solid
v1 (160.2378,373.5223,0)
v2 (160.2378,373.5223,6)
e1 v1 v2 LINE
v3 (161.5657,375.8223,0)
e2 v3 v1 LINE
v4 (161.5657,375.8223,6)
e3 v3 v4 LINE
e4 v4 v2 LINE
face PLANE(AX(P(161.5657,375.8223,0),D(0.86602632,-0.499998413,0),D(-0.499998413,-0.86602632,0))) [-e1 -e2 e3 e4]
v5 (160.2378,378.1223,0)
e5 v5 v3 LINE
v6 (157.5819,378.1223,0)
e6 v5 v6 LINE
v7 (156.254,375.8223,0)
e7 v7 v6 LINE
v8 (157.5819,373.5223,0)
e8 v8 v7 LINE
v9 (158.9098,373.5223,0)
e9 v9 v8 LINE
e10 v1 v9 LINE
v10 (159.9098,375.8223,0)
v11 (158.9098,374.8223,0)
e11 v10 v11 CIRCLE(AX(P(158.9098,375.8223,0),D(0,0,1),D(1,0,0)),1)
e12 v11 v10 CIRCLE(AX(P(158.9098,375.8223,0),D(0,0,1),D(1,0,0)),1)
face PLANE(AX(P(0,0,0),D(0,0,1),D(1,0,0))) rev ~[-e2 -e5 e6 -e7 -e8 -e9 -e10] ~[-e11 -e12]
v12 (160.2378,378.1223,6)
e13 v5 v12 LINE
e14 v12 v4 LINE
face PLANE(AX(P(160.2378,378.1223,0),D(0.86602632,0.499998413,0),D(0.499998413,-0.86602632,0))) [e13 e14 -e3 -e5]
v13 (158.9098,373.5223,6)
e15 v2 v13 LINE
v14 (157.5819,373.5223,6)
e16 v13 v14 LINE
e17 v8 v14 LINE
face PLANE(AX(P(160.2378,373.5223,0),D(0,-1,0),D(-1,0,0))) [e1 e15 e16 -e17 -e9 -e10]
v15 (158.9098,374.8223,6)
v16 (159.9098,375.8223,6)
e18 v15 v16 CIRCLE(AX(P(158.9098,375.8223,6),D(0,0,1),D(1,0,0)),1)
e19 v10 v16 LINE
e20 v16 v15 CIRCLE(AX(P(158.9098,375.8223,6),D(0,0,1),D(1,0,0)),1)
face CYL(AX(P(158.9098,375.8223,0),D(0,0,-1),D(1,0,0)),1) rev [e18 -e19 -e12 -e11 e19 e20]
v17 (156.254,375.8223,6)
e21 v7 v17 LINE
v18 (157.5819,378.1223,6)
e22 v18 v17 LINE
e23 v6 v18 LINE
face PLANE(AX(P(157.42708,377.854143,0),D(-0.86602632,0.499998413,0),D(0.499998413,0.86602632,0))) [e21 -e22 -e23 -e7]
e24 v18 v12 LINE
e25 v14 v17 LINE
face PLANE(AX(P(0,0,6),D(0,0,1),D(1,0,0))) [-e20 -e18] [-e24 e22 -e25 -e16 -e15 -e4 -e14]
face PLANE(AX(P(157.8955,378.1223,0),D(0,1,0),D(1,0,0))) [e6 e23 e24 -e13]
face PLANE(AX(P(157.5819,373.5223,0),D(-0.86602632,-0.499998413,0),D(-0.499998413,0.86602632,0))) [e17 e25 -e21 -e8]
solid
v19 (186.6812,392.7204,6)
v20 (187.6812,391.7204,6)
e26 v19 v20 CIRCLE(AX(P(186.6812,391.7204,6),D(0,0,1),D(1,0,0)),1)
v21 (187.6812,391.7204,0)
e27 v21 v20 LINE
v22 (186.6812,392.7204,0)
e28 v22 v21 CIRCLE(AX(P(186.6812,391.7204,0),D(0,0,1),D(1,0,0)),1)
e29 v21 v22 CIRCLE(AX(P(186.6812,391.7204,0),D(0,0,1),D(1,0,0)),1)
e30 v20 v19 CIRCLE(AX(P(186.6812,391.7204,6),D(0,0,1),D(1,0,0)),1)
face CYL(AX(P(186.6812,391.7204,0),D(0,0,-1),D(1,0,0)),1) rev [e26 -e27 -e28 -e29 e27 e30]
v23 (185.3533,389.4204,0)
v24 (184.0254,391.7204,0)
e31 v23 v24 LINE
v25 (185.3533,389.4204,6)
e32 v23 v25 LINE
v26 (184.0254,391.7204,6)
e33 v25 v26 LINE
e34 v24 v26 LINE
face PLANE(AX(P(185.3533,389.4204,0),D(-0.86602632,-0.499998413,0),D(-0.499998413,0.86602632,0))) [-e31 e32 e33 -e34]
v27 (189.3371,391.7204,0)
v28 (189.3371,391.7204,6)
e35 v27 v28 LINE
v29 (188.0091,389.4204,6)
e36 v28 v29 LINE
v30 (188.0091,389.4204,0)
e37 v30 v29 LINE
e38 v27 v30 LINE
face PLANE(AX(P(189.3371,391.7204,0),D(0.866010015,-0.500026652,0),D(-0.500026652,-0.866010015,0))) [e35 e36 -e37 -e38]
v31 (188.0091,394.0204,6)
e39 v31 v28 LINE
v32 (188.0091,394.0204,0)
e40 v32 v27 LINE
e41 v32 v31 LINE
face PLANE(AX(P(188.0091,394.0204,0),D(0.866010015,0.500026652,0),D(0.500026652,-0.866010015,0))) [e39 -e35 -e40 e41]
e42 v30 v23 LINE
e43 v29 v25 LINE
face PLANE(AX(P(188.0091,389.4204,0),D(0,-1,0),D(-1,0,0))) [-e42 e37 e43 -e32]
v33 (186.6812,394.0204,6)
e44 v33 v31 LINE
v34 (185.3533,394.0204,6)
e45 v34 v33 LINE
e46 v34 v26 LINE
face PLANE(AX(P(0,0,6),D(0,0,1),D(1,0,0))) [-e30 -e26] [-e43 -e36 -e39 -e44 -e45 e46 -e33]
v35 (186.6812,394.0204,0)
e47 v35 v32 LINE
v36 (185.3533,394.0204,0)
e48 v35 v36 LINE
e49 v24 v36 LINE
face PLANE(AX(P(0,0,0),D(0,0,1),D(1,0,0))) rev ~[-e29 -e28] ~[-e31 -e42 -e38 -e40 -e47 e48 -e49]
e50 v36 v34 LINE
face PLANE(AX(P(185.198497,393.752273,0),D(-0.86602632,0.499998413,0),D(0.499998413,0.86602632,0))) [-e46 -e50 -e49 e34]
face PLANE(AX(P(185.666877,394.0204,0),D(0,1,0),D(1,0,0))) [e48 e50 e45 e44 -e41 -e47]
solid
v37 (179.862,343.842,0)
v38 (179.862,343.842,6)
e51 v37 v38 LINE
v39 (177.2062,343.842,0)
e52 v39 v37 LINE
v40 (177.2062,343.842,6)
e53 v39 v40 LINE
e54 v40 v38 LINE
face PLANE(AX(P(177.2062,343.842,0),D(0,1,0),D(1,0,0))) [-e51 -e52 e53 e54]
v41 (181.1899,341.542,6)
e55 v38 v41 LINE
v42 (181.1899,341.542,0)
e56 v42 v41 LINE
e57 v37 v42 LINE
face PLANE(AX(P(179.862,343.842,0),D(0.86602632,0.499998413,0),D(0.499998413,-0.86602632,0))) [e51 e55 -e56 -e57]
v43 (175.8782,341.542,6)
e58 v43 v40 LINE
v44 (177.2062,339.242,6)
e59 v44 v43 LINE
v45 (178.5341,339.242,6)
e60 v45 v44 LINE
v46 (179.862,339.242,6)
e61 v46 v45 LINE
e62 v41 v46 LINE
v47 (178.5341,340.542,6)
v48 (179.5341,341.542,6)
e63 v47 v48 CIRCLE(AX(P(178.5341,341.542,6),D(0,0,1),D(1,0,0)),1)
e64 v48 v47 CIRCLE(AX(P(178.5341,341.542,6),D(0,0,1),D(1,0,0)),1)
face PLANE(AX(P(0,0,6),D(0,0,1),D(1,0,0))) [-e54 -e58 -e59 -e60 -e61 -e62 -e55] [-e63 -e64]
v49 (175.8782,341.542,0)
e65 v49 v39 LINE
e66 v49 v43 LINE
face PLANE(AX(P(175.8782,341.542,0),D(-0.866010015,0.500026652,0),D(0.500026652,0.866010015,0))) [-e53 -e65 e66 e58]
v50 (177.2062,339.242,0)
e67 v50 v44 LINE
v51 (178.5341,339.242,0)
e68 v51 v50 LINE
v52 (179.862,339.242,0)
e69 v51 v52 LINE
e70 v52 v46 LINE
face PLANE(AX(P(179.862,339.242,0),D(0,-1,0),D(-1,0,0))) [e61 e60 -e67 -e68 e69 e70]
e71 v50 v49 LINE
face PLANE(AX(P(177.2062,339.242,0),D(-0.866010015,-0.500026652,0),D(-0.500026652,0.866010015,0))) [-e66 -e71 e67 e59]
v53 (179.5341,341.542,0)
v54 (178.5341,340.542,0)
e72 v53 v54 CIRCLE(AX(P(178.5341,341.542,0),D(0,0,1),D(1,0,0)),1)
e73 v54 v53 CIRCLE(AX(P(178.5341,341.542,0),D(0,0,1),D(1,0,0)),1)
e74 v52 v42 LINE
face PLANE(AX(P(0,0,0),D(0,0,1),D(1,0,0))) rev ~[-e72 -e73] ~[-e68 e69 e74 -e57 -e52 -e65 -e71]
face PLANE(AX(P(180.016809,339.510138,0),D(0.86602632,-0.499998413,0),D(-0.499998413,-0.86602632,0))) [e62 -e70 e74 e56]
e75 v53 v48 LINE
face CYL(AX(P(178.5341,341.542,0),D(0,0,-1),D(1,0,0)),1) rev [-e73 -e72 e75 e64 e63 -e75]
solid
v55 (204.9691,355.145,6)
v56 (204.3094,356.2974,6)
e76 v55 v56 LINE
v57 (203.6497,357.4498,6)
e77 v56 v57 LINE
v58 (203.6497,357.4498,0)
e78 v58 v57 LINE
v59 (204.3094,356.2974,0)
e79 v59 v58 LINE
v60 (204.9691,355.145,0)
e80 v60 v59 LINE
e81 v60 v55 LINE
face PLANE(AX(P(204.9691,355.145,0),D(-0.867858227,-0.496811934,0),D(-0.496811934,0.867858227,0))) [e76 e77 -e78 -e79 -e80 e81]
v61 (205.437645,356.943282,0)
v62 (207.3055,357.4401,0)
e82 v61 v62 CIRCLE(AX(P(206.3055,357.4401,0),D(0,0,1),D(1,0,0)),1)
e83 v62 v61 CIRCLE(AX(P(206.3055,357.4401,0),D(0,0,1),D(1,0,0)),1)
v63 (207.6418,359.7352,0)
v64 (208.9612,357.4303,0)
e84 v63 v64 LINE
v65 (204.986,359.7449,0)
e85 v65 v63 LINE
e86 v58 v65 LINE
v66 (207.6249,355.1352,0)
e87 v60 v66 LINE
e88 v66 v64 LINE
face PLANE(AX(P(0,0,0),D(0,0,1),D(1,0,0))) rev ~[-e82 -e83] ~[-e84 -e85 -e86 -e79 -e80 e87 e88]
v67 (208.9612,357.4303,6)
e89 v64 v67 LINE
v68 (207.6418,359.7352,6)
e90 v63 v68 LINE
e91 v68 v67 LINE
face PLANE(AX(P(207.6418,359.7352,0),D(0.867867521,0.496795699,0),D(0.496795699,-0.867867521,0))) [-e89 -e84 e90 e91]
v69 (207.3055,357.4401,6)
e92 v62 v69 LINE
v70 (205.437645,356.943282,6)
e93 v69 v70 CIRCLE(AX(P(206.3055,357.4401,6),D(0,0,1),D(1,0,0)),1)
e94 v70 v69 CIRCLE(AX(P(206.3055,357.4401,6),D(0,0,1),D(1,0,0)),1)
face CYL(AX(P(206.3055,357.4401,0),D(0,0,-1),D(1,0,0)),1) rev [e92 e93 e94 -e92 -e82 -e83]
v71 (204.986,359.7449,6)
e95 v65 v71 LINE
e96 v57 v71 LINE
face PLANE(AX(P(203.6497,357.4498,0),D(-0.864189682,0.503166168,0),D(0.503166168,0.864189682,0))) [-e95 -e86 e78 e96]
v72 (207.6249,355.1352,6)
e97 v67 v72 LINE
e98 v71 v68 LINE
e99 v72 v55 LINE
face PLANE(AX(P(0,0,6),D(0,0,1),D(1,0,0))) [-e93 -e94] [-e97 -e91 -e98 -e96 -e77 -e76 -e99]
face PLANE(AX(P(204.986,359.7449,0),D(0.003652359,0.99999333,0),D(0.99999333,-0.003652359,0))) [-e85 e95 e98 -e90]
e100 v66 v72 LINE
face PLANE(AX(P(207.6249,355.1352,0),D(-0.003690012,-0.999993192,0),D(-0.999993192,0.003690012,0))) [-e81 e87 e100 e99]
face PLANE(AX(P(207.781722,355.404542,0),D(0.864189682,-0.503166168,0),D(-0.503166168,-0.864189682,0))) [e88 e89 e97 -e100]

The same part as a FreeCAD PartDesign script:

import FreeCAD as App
import Part
import Sketcher
Q = App.Units.Quantity

doc = App.newDocument("Part")
body = doc.addObject("PartDesign::Body", "Body")
body.AllowCompound = True

# Sketch on XY plane
sketch1 = body.newObject("Sketcher::SketchObject", "Sketch")
sketch1.AttachmentSupport = (doc.getObject("XY_Plane"), [""])
sketch1.MapMode = "FlatFace"
sketch1.addGeometry([
    Part.LineSegment(App.Vector(186.7, 394, 0), App.Vector(185.4, 394, 0)),  # 0
    Part.LineSegment(App.Vector(185.4, 394, 0), App.Vector(184, 391.7, 0)),  # 1
    Part.LineSegment(App.Vector(184, 391.7, 0), App.Vector(185.4, 389.4, 0)),  # 2
    Part.LineSegment(App.Vector(185.4, 389.4, 0), App.Vector(188, 389.4, 0)),  # 3
    Part.LineSegment(App.Vector(188, 389.4, 0), App.Vector(189.3, 391.7, 0)),  # 4
    Part.LineSegment(App.Vector(189.3, 391.7, 0), App.Vector(188, 394, 0)),  # 5
    Part.LineSegment(App.Vector(188, 394, 0), App.Vector(186.7, 394, 0)),  # 6
    Part.Circle(App.Vector(186.7, 391.7, 0), App.Vector(0, 0, 1), 1),  # 7
    Part.LineSegment(App.Vector(207.6, 355.1, 0), App.Vector(209, 357.4, 0)),  # 8
    Part.LineSegment(App.Vector(209, 357.4, 0), App.Vector(207.6, 359.7, 0)),  # 9
    Part.LineSegment(App.Vector(207.6, 359.7, 0), App.Vector(205, 359.7, 0)),  # 10
    Part.LineSegment(App.Vector(205, 359.7, 0), App.Vector(203.6, 357.4, 0)),  # 11
    Part.LineSegment(App.Vector(203.6, 357.4, 0), App.Vector(204.3, 356.3, 0)),  # 12
    Part.LineSegment(App.Vector(204.3, 356.3, 0), App.Vector(205, 355.1, 0)),  # 13
    Part.LineSegment(App.Vector(205, 355.1, 0), App.Vector(207.6, 355.1, 0)),  # 14
    Part.Circle(App.Vector(206.3, 357.4, 0), App.Vector(0, 0, 1), 1),  # 15
    Part.LineSegment(App.Vector(179.9, 339.2, 0), App.Vector(181.2, 341.5, 0)),  # 16
    Part.LineSegment(App.Vector(181.2, 341.5, 0), App.Vector(179.9, 343.8, 0)),  # 17
    Part.LineSegment(App.Vector(179.9, 343.8, 0), App.Vector(177.2, 343.8, 0)),  # 18
    Part.LineSegment(App.Vector(177.2, 343.8, 0), App.Vector(175.9, 341.5, 0)),  # 19
    Part.LineSegment(App.Vector(175.9, 341.5, 0), App.Vector(177.2, 339.2, 0)),  # 20
    Part.LineSegment(App.Vector(177.2, 339.2, 0), App.Vector(178.5, 339.2, 0)),  # 21
    Part.LineSegment(App.Vector(178.5, 339.2, 0), App.Vector(179.9, 339.2, 0)),  # 22
    Part.Circle(App.Vector(178.5, 341.5, 0), App.Vector(0, 0, 1), 1),  # 23
    Part.LineSegment(App.Vector(160.2, 378.1, 0), App.Vector(157.6, 378.1, 0)),  # 24
    Part.LineSegment(App.Vector(157.6, 378.1, 0), App.Vector(156.3, 375.8, 0)),  # 25
    Part.LineSegment(App.Vector(156.3, 375.8, 0), App.Vector(157.6, 373.5, 0)),  # 26
    Part.LineSegment(App.Vector(157.6, 373.5, 0), App.Vector(158.9, 373.5, 0)),  # 27
    Part.LineSegment(App.Vector(158.9, 373.5, 0), App.Vector(160.2, 373.5, 0)),  # 28
    Part.LineSegment(App.Vector(160.2, 373.5, 0), App.Vector(161.6, 375.8, 0)),  # 29
    Part.LineSegment(App.Vector(161.6, 375.8, 0), App.Vector(160.2, 378.1, 0)),  # 30
    Part.Circle(App.Vector(158.9, 375.8, 0), App.Vector(0, 0, 1), 1),  # 31
], False)
sketch1.addConstraint([
    Sketcher.Constraint("Coincident", 0, 2, 1, 1),
    Sketcher.Constraint("Coincident", 1, 2, 2, 1),
    Sketcher.Constraint("Coincident", 2, 2, 3, 1),
    Sketcher.Constraint("Coincident", 3, 2, 4, 1),
    Sketcher.Constraint("Coincident", 4, 2, 5, 1),
    Sketcher.Constraint("Coincident", 5, 2, 6, 1),
    Sketcher.Constraint("Coincident", 6, 2, 0, 1),
    Sketcher.Constraint("Coincident", 8, 2, 9, 1),
    Sketcher.Constraint("Coincident", 9, 2, 10, 1),
    Sketcher.Constraint("Coincident", 10, 2, 11, 1),
    Sketcher.Constraint("Coincident", 11, 2, 12, 1),
    Sketcher.Constraint("Coincident", 12, 2, 13, 1),
    Sketcher.Constraint("Coincident", 13, 2, 14, 1),
    Sketcher.Constraint("Coincident", 14, 2, 8, 1),
    Sketcher.Constraint("Coincident", 16, 2, 17, 1),
    Sketcher.Constraint("Coincident", 17, 2, 18, 1),
    Sketcher.Constraint("Coincident", 18, 2, 19, 1),
    Sketcher.Constraint("Coincident", 19, 2, 20, 1),
    Sketcher.Constraint("Coincident", 20, 2, 21, 1),
    Sketcher.Constraint("Coincident", 21, 2, 22, 1),
    Sketcher.Constraint("Coincident", 22, 2, 16, 1),
    Sketcher.Constraint("Coincident", 24, 2, 25, 1),
    Sketcher.Constraint("Coincident", 25, 2, 26, 1),
    Sketcher.Constraint("Coincident", 26, 2, 27, 1),
    Sketcher.Constraint("Coincident", 27, 2, 28, 1),
    Sketcher.Constraint("Coincident", 28, 2, 29, 1),
    Sketcher.Constraint("Coincident", 29, 2, 30, 1),
    Sketcher.Constraint("Coincident", 30, 2, 24, 1),
    Sketcher.Constraint("Horizontal", 0),
    Sketcher.Constraint("Horizontal", 3),
    Sketcher.Constraint("Horizontal", 6),
    Sketcher.Constraint("Horizontal", 18),
    Sketcher.Constraint("Horizontal", 21),
    Sketcher.Constraint("Horizontal", 22),
    Sketcher.Constraint("Horizontal", 24),
    Sketcher.Constraint("Horizontal", 27),
    Sketcher.Constraint("Horizontal", 28),
    Sketcher.Constraint("Equal", 7, 15),
    Sketcher.Constraint("Equal", 15, 23),
    Sketcher.Constraint("Equal", 23, 31),
    Sketcher.Constraint("Parallel", 1, 4),
    Sketcher.Constraint("Parallel", 2, 5),
    Sketcher.Constraint("Parallel", 8, 11),
    Sketcher.Constraint("Parallel", 9, 12),
    Sketcher.Constraint("Parallel", 12, 13),
    Sketcher.Constraint("Parallel", 10, 14),
    Sketcher.Constraint("Parallel", 4, 16),
    Sketcher.Constraint("Parallel", 5, 17),
    Sketcher.Constraint("Parallel", 16, 19),
    Sketcher.Constraint("Parallel", 17, 20),
    Sketcher.Constraint("Parallel", 19, 25),
    Sketcher.Constraint("Parallel", 20, 26),
    Sketcher.Constraint("Parallel", 25, 29),
    Sketcher.Constraint("Parallel", 26, 30),
    Sketcher.Constraint("Horizontal", 7, 3, 1, 2),
    Sketcher.Constraint("Horizontal", 1, 2, 4, 2),
    Sketcher.Constraint("Horizontal", 23, 3, 16, 2),
    Sketcher.Constraint("Horizontal", 16, 2, 19, 2),
    Sketcher.Constraint("Horizontal", 31, 3, 25, 2),
    Sketcher.Constraint("Horizontal", 25, 2, 29, 2),
    Sketcher.Constraint("Vertical", 0, 2, 2, 2),
    Sketcher.Constraint("Vertical", 3, 2, 5, 2),
    Sketcher.Constraint("Vertical", 7, 3, 6, 2),
    Sketcher.Constraint("Vertical", 18, 2, 20, 2),
    Sketcher.Constraint("Vertical", 23, 3, 21, 2),
    Sketcher.Constraint("Vertical", 24, 2, 26, 2),
    Sketcher.Constraint("Vertical", 31, 3, 27, 2),
    Sketcher.Constraint("Equal", 0, 6),
    Sketcher.Constraint("Equal", 3, 18),
    Sketcher.Constraint("Equal", 6, 21),
    Sketcher.Constraint("Equal", 18, 24),
    Sketcher.Constraint("Equal", 22, 27),
    Sketcher.Constraint("Equal", 5, 8),
    Sketcher.Constraint("Equal", 8, 9),
    Sketcher.Constraint("Equal", 9, 10),
    Sketcher.Constraint("Equal", 10, 11),
    Sketcher.Constraint("Equal", 12, 13),
    Sketcher.Constraint("Equal", 14, 16),
    Sketcher.Constraint("Equal", 20, 25),
    Sketcher.Constraint("Diameter", 7, 2.0),
    Sketcher.Constraint("DistanceY", 7, 3, 0, 2, 2.3),
    Sketcher.Constraint("Angle", 1, Q("-120 deg")),
    Sketcher.Constraint("Angle", 8, Q("59.7903 deg")),
    Sketcher.Constraint("Angle", 10, Q("179.7907 deg")),
    Sketcher.Constraint("Angle", 12, Q("-60.2107 deg")),
    Sketcher.Constraint("DistanceX", 0, 2, 0, 1, 1.328),
    Sketcher.Constraint("DistanceY", -1, 1, 15, 3, 357.44),
    Sketcher.Constraint("DistanceX", -1, 1, 16, 2, 181.19),
    Sketcher.Constraint("DistanceX", 1, 2, 15, 3, 22.28),
    Sketcher.Constraint("DistanceY", 8, 2, 3, 2, 31.99),
    Sketcher.Constraint("DistanceY", -1, 1, 23, 3, 341.542),
    Sketcher.Constraint("DistanceX", -1, 1, 3, 2, 188.009),
    Sketcher.Constraint("DistanceX", -1, 1, 10, 2, 204.986),
    Sketcher.Constraint("DistanceY", -1, 1, 10, 2, 359.745),
    Sketcher.Constraint("DistanceX", -1, 1, 24, 2, 157.582),
    Sketcher.Constraint("DistanceY", 31, 3, 7, 3, 15.898),
])
pad1 = body.newObject("PartDesign::Pad", "Pad")
pad1.Profile = sketch1
pad1.Length = 6

doc.recompute()
